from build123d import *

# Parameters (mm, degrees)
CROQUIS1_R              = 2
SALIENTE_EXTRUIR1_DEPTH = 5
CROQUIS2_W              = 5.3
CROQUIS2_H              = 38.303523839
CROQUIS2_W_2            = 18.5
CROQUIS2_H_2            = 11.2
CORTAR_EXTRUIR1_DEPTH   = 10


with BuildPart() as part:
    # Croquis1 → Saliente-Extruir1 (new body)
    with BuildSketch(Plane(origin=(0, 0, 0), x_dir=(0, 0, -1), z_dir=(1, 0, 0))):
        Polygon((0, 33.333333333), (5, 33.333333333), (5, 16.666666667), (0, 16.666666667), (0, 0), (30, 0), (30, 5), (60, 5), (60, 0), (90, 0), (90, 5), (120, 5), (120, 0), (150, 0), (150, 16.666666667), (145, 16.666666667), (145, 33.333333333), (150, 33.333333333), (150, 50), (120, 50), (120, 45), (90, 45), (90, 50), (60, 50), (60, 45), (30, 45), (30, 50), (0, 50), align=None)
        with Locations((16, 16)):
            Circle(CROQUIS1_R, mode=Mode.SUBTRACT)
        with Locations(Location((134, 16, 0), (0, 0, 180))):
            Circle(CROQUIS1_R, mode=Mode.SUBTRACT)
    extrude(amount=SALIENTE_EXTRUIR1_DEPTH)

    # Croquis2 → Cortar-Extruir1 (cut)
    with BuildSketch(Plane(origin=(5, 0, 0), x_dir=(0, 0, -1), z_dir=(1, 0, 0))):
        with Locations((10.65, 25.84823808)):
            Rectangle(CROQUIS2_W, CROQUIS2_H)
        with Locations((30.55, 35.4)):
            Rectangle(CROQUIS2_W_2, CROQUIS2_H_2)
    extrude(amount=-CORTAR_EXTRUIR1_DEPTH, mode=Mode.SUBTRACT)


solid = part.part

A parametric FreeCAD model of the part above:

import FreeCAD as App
import Part
import Sketcher
from FreeCAD import Vector
Q = App.Units.Quantity


def add_polygon(sketch, points):
    """Adds a closed chain of lines whose ends are joined by coincident constraints."""
    first, n = sketch.GeometryCount, len(points)
    for a, b in zip(points, points[1:] + points[:1]):
        sketch.addGeometry(Part.LineSegment(App.Vector(*a, 0), App.Vector(*b, 0)), False)
    for i in range(n):
        sketch.addConstraint(Sketcher.Constraint("Coincident", first + i, 2, first + (i + 1) % n, 1))

doc = App.newDocument("Part")
body = doc.addObject("PartDesign::Body", "Body")

sketch1 = doc.addObject("Sketcher::SketchObject", "Sketch")
body.addObject(sketch1)
sketch1.AttachmentSupport = (doc.YZ_Plane, [""])
sketch1.MapMode = "FlatFace"
add_polygon(sketch1, [(33.333333, 0), (33.333333, -5), (16.666667, -5), (16.666667, 0), (0, 0), (0, -30), (5, -30), (5, -60), (0, -60), (0, -90), (5, -90), (5, -120), (0, -120), (0, -150), (16.666667, -150), (16.666667, -145), (33.333333, -145), (33.333333, -150), (50, -150), (50, -120), (45, -120), (45, -90), (50, -90), (50, -60), (45, -60), (45, -30), (50, -30), (50, 0)])
sketch1.addGeometry(Part.Circle(Vector(16, -16, 0), Vector(0, 0, 1), 2), False)
sketch1.addGeometry(Part.Circle(Vector(16, -134, 0), Vector(0, 0, 1), 2), False)
sketch1.addConstraint([
    Sketcher.Constraint("Vertical", 0),
    Sketcher.Constraint("Horizontal", 1),
    Sketcher.Constraint("Vertical", 2),
    Sketcher.Constraint("Horizontal", 3),
    Sketcher.Constraint("Vertical", 4),
    Sketcher.Constraint("Horizontal", 5),
    Sketcher.Constraint("Vertical", 6),
    Sketcher.Constraint("Horizontal", 7),
    Sketcher.Constraint("Vertical", 8),
    Sketcher.Constraint("Horizontal", 9),
    Sketcher.Constraint("Vertical", 10),
    Sketcher.Constraint("Horizontal", 11),
    Sketcher.Constraint("Vertical", 12),
    Sketcher.Constraint("Horizontal", 13),
    Sketcher.Constraint("Vertical", 14),
    Sketcher.Constraint("Horizontal", 15),
    Sketcher.Constraint("Vertical", 16),
    Sketcher.Constraint("Horizontal", 17),
    Sketcher.Constraint("Vertical", 18),
    Sketcher.Constraint("Horizontal", 19),
    Sketcher.Constraint("Vertical", 20),
    Sketcher.Constraint("Horizontal", 21),
    Sketcher.Constraint("Vertical", 22),
    Sketcher.Constraint("Horizontal", 23),
    Sketcher.Constraint("Vertical", 24),
    Sketcher.Constraint("Horizontal", 25),
    Sketcher.Constraint("Vertical", 26),
    Sketcher.Constraint("Horizontal", 27),
    Sketcher.Constraint("Coincident", 3, 2, -1, 1),
    Sketcher.Constraint("Equal", 28, 29),
    Sketcher.Constraint("PointOnObject", 7, 2, -2),
    Sketcher.Constraint("PointOnObject", 11, 2, -2),
    Sketcher.Constraint("PointOnObject", 26, 2, -1),
    Sketcher.Constraint("Horizontal", 13, 2, 16, 2),
    Sketcher.Constraint("Horizontal", 11, 2, 18, 2),
    Sketcher.Constraint("Horizontal", 9, 2, 20, 2),
    Sketcher.Constraint("Horizontal", 7, 2, 22, 2),
    Sketcher.Constraint("Horizontal", 5, 2, 24, 2),
    Sketcher.Constraint("Vertical", 28, 3, 29, 3),
    Sketcher.Constraint("Vertical", 6, 2, 9, 2),
    Sketcher.Constraint("Vertical", 2, 2, 13, 2),
    Sketcher.Constraint("Vertical", 0, 2, 15, 2),
    Sketcher.Constraint("Vertical", 18, 2, 21, 2),
    Sketcher.Constraint("Vertical", 20, 2, 23, 2),
    Sketcher.Constraint("Vertical", 22, 2, 25, 2),
    Sketcher.Constraint("Equal", 1, 3),
    Sketcher.Constraint("Equal", 15, 17),
    Sketcher.Constraint("Equal", 11, 19),
    Sketcher.Constraint("Equal", 25, 0),
    Sketcher.Constraint("Equal", 4, 6),
    Sketcher.Constraint("Equal", 6, 8),
    Sketcher.Constraint("Equal", 8, 10),
    Sketcher.Constraint("Equal", 10, 12),
    Sketcher.Constraint("Equal", 2, 14),
    Sketcher.Constraint("Diameter", 28, Q("4 mm")),
    Sketcher.Constraint("DistanceX", 5, 1, 5, 2, Q("5 mm")),
    Sketcher.Constraint("DistanceY", 4, 2, 4, 1, Q("30 mm")),
    Sketcher.Constraint("DistanceX", -1, 1, 28, 3, Q("16 mm")),
    Sketcher.Constraint("DistanceY", 28, 3, -1, 1, Q("16 mm")),
    Sketcher.Constraint("DistanceY", 29, 3, -1, 1, Q("134 mm")),
    Sketcher.Constraint("DistanceX", -1, 1, 17, 2, Q("50 mm")),
])
pad1 = doc.addObject("PartDesign::Pad", "Pad")
body.addObject(pad1)
pad1.Profile = sketch1
pad1.Length = 5

sketch2 = doc.addObject("Sketcher::SketchObject", "Sketch001")
body.addObject(sketch2)
sketch2.AttachmentSupport = (doc.YZ_Plane, [""])
sketch2.MapMode = "FlatFace"
sketch2.AttachmentOffset = App.Placement(Vector(0, 0, 5), App.Rotation())
add_polygon(sketch2, [(45, -8), (6.696476, -8), (6.696476, -13.3), (45, -13.3)])
add_polygon(sketch2, [(41, -21.3), (29.8, -21.3), (29.8, -39.8), (41, -39.8)])
sketch2.addConstraint([
    Sketcher.Constraint("Horizontal", 0),
    Sketcher.Constraint("Vertical", 1),
    Sketcher.Constraint("Horizontal", 2),
    Sketcher.Constraint("Vertical", 3),
    Sketcher.Constraint("Horizontal", 4),
    Sketcher.Constraint("Vertical", 5),
    Sketcher.Constraint("Horizontal", 6),
    Sketcher.Constraint("Vertical", 7),
    Sketcher.Constraint("DistanceX", 4, 2, 4, 1, Q("11.2 mm")),
    Sketcher.Constraint("DistanceY", 1, 2, 1, 1, Q("5.3 mm")),
    Sketcher.Constraint("DistanceY", 5, 2, 5, 1, Q("18.5 mm")),
    Sketcher.Constraint("DistanceY", 0, 2, -1, 1, Q("8 mm")),
    Sketcher.Constraint("DistanceX", -1, 1, 2, 2, Q("45 mm")),
    Sketcher.Constraint("DistanceX", -1, 1, 6, 2, Q("41 mm")),
    Sketcher.Constraint("DistanceY", 4, 2, 2, 2, Q("8 mm")),
    Sketcher.Constraint("DistanceX", 0, 2, 0, 1, Q("38.303524 mm")),
])
pocket1 = doc.addObject("PartDesign::Pocket", "Pocket")
body.addObject(pocket1)
pocket1.Profile = sketch2
pocket1.Length = 10

doc.recompute()
